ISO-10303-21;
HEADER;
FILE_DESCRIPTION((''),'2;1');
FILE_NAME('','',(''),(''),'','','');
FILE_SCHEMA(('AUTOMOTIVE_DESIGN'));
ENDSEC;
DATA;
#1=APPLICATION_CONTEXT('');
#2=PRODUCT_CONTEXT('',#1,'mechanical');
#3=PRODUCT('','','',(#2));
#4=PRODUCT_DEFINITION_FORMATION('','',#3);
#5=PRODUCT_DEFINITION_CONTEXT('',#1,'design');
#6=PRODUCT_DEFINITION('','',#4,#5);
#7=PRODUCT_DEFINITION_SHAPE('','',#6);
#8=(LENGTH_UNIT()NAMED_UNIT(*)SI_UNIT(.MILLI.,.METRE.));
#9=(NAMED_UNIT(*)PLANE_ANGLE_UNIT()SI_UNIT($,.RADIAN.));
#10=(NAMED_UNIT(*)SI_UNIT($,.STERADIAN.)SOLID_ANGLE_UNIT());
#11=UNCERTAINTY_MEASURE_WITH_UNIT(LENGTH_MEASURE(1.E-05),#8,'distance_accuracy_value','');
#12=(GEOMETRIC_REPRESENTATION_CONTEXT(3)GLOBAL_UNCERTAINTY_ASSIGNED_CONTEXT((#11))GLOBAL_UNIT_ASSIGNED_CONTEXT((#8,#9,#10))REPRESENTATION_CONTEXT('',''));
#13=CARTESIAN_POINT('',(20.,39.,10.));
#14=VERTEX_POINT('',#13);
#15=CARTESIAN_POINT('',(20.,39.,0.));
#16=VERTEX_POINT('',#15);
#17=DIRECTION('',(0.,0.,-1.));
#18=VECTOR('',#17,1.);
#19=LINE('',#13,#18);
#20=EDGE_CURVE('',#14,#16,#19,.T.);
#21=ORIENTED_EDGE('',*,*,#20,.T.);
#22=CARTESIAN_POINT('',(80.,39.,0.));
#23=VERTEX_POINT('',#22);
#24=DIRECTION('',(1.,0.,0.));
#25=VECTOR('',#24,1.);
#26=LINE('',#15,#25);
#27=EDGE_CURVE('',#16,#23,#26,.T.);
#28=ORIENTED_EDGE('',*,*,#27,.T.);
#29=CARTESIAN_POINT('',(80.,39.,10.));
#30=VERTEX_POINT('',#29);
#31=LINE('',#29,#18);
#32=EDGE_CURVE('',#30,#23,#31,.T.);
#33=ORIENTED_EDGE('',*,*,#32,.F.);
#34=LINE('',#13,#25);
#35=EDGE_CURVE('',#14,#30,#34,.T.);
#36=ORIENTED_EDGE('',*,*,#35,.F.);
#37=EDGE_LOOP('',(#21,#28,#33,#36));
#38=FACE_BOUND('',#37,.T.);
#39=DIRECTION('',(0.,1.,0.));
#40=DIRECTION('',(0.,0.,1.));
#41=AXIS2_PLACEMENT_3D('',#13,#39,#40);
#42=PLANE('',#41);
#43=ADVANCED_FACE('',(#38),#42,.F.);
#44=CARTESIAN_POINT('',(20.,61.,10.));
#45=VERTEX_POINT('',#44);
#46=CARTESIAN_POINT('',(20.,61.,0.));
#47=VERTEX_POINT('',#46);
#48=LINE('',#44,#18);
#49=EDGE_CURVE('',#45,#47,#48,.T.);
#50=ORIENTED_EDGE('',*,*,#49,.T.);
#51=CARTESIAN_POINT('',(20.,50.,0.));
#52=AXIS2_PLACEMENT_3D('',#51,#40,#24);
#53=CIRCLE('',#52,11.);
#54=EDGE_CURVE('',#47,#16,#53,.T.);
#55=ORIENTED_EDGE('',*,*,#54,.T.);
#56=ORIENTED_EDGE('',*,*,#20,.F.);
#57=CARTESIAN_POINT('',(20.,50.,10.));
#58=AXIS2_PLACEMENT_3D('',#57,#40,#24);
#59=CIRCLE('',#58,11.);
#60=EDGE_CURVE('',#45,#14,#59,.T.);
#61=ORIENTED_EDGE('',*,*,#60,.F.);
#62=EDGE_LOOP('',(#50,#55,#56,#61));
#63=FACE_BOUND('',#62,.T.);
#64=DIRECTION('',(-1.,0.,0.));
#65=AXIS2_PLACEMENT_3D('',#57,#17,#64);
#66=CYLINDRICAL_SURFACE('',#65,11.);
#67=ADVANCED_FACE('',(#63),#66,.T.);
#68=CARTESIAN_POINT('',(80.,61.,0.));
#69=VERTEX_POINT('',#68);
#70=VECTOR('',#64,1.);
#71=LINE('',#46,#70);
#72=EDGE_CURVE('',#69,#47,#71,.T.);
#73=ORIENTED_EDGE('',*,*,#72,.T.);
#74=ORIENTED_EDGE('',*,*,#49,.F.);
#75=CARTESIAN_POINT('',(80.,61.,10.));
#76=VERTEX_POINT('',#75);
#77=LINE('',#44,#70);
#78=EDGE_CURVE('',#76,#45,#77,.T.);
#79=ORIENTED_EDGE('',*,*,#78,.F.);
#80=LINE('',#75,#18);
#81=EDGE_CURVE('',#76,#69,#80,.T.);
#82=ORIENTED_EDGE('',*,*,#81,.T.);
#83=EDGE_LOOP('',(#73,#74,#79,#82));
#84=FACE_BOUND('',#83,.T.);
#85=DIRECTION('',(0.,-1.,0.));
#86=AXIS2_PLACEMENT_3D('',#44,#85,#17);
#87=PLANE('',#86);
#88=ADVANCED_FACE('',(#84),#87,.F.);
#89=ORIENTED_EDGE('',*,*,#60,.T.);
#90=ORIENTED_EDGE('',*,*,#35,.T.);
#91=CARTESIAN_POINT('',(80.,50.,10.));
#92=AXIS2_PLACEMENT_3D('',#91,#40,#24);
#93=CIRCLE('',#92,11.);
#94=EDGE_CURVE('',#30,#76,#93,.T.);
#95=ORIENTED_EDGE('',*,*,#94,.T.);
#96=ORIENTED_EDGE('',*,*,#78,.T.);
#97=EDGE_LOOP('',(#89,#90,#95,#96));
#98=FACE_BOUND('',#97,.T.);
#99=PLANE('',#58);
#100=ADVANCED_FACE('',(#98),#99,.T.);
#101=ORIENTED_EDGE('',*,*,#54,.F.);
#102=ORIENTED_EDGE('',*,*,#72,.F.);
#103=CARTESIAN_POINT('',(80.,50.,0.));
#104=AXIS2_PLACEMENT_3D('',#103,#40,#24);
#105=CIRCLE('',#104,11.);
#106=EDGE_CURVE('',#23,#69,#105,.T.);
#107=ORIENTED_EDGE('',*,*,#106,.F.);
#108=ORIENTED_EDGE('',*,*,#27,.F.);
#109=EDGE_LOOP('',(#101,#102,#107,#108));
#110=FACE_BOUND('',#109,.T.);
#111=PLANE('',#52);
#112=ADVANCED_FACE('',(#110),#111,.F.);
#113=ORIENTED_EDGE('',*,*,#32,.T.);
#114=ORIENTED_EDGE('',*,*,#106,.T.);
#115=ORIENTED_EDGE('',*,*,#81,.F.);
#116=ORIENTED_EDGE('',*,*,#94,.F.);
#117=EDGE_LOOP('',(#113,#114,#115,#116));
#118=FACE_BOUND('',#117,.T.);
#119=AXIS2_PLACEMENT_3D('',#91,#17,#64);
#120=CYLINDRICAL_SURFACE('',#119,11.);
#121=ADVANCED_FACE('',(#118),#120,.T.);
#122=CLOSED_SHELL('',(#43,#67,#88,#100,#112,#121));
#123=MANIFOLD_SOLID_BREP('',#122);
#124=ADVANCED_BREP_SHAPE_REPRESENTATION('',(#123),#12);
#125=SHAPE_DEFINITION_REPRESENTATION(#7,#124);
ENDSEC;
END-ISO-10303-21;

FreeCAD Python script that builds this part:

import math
import FreeCAD as App
import Part
import Sketcher
from FreeCAD import Vector

doc = App.newDocument("Part")
body = doc.addObject("PartDesign::Body", "Body")

# Sketch on XY plane
sketch1 = body.newObject("Sketcher::SketchObject", "Sketch")
sketch1.AttachmentSupport = (doc.getObject("XY_Plane"), [""])
sketch1.MapMode = "FlatFace"
sketch1.addGeometry([
    Part.LineSegment(Vector(80, 61, 0), Vector(20, 61, 0)),
    Part.ArcOfCircle(Part.Circle(Vector(20, 50, 0), Vector(0, 0, 1), 11), math.radians(90), math.radians(270)),
    Part.LineSegment(Vector(20, 39, 0), Vector(80, 39, 0)),
    Part.ArcOfCircle(Part.Circle(Vector(80, 50, 0), Vector(0, 0, 1), 11), math.radians(-90), math.radians(90)),
], False)
sketch1.addConstraint([
    Sketcher.Constraint("Tangent", 0, 2, 1, 1),
    Sketcher.Constraint("Tangent", 1, 2, 2, 1),
    Sketcher.Constraint("Tangent", 2, 2, 3, 1),
    Sketcher.Constraint("Tangent", 3, 2, 0, 1),
    Sketcher.Constraint("Horizontal", 0),
    Sketcher.Constraint("Horizontal", 2),
    Sketcher.Constraint("Radius", 1, 11.0),
    Sketcher.Constraint("DistanceX", 0, 2, 0, 1, 60.0),
    Sketcher.Constraint("DistanceX", -1, 1, 1, 3, 20.0),
    Sketcher.Constraint("DistanceY", -1, 1, 1, 3, 50.0),
])
pad1 = body.newObject("PartDesign::Pad", "Pad")
pad1.Profile = sketch1
pad1.Length = 10

doc.recompute()
